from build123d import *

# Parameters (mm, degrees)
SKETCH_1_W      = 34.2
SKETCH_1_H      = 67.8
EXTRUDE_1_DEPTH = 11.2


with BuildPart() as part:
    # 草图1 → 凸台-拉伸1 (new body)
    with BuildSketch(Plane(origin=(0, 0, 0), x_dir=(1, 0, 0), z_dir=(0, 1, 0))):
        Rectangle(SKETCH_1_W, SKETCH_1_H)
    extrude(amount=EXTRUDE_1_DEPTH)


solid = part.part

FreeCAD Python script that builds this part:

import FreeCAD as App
import Part
import Sketcher


def add_polygon(sketch, points):
    """Adds a closed chain of lines whose ends are joined by coincident constraints."""
    first, n = sketch.GeometryCount, len(points)
    for a, b in zip(points, points[1:] + points[:1]):
        sketch.addGeometry(Part.LineSegment(App.Vector(*a, 0), App.Vector(*b, 0)), False)
    for i in range(n):
        sketch.addConstraint(Sketcher.Constraint("Coincident", first + i, 2, first + (i + 1) % n, 1))

doc = App.newDocument("Part")
body = doc.addObject("PartDesign::Body", "Body")

# Sketch on XZ plane
sketch1 = doc.addObject("Sketcher::SketchObject", "Sketch")
body.addObject(sketch1)
sketch1.AttachmentSupport = (doc.XZ_Plane, [""])
sketch1.MapMode = "FlatFace"
add_polygon(sketch1, [(-17, -34), (-17, 34), (17, 34), (17, -34)])  # lines 0-3
sketch1.addConstraint([
    Sketcher.Constraint("Vertical", 0),
    Sketcher.Constraint("Horizontal", 1),
    Sketcher.Constraint("Vertical", 2),
    Sketcher.Constraint("Horizontal", 3),
    Sketcher.Constraint("Symmetric", 0, 2, 2, 2, -1, 1),
    Sketcher.Constraint("DistanceX", 1, 1, 1, 2, 34.2),
    Sketcher.Constraint("DistanceY", 0, 1, 0, 2, 67.8),
])
pad1 = doc.addObject("PartDesign::Pad", "Pad")
body.addObject(pad1)
pad1.Profile = sketch1
pad1.Length = 11.2
pad1.Reversed = True

doc.recompute()
